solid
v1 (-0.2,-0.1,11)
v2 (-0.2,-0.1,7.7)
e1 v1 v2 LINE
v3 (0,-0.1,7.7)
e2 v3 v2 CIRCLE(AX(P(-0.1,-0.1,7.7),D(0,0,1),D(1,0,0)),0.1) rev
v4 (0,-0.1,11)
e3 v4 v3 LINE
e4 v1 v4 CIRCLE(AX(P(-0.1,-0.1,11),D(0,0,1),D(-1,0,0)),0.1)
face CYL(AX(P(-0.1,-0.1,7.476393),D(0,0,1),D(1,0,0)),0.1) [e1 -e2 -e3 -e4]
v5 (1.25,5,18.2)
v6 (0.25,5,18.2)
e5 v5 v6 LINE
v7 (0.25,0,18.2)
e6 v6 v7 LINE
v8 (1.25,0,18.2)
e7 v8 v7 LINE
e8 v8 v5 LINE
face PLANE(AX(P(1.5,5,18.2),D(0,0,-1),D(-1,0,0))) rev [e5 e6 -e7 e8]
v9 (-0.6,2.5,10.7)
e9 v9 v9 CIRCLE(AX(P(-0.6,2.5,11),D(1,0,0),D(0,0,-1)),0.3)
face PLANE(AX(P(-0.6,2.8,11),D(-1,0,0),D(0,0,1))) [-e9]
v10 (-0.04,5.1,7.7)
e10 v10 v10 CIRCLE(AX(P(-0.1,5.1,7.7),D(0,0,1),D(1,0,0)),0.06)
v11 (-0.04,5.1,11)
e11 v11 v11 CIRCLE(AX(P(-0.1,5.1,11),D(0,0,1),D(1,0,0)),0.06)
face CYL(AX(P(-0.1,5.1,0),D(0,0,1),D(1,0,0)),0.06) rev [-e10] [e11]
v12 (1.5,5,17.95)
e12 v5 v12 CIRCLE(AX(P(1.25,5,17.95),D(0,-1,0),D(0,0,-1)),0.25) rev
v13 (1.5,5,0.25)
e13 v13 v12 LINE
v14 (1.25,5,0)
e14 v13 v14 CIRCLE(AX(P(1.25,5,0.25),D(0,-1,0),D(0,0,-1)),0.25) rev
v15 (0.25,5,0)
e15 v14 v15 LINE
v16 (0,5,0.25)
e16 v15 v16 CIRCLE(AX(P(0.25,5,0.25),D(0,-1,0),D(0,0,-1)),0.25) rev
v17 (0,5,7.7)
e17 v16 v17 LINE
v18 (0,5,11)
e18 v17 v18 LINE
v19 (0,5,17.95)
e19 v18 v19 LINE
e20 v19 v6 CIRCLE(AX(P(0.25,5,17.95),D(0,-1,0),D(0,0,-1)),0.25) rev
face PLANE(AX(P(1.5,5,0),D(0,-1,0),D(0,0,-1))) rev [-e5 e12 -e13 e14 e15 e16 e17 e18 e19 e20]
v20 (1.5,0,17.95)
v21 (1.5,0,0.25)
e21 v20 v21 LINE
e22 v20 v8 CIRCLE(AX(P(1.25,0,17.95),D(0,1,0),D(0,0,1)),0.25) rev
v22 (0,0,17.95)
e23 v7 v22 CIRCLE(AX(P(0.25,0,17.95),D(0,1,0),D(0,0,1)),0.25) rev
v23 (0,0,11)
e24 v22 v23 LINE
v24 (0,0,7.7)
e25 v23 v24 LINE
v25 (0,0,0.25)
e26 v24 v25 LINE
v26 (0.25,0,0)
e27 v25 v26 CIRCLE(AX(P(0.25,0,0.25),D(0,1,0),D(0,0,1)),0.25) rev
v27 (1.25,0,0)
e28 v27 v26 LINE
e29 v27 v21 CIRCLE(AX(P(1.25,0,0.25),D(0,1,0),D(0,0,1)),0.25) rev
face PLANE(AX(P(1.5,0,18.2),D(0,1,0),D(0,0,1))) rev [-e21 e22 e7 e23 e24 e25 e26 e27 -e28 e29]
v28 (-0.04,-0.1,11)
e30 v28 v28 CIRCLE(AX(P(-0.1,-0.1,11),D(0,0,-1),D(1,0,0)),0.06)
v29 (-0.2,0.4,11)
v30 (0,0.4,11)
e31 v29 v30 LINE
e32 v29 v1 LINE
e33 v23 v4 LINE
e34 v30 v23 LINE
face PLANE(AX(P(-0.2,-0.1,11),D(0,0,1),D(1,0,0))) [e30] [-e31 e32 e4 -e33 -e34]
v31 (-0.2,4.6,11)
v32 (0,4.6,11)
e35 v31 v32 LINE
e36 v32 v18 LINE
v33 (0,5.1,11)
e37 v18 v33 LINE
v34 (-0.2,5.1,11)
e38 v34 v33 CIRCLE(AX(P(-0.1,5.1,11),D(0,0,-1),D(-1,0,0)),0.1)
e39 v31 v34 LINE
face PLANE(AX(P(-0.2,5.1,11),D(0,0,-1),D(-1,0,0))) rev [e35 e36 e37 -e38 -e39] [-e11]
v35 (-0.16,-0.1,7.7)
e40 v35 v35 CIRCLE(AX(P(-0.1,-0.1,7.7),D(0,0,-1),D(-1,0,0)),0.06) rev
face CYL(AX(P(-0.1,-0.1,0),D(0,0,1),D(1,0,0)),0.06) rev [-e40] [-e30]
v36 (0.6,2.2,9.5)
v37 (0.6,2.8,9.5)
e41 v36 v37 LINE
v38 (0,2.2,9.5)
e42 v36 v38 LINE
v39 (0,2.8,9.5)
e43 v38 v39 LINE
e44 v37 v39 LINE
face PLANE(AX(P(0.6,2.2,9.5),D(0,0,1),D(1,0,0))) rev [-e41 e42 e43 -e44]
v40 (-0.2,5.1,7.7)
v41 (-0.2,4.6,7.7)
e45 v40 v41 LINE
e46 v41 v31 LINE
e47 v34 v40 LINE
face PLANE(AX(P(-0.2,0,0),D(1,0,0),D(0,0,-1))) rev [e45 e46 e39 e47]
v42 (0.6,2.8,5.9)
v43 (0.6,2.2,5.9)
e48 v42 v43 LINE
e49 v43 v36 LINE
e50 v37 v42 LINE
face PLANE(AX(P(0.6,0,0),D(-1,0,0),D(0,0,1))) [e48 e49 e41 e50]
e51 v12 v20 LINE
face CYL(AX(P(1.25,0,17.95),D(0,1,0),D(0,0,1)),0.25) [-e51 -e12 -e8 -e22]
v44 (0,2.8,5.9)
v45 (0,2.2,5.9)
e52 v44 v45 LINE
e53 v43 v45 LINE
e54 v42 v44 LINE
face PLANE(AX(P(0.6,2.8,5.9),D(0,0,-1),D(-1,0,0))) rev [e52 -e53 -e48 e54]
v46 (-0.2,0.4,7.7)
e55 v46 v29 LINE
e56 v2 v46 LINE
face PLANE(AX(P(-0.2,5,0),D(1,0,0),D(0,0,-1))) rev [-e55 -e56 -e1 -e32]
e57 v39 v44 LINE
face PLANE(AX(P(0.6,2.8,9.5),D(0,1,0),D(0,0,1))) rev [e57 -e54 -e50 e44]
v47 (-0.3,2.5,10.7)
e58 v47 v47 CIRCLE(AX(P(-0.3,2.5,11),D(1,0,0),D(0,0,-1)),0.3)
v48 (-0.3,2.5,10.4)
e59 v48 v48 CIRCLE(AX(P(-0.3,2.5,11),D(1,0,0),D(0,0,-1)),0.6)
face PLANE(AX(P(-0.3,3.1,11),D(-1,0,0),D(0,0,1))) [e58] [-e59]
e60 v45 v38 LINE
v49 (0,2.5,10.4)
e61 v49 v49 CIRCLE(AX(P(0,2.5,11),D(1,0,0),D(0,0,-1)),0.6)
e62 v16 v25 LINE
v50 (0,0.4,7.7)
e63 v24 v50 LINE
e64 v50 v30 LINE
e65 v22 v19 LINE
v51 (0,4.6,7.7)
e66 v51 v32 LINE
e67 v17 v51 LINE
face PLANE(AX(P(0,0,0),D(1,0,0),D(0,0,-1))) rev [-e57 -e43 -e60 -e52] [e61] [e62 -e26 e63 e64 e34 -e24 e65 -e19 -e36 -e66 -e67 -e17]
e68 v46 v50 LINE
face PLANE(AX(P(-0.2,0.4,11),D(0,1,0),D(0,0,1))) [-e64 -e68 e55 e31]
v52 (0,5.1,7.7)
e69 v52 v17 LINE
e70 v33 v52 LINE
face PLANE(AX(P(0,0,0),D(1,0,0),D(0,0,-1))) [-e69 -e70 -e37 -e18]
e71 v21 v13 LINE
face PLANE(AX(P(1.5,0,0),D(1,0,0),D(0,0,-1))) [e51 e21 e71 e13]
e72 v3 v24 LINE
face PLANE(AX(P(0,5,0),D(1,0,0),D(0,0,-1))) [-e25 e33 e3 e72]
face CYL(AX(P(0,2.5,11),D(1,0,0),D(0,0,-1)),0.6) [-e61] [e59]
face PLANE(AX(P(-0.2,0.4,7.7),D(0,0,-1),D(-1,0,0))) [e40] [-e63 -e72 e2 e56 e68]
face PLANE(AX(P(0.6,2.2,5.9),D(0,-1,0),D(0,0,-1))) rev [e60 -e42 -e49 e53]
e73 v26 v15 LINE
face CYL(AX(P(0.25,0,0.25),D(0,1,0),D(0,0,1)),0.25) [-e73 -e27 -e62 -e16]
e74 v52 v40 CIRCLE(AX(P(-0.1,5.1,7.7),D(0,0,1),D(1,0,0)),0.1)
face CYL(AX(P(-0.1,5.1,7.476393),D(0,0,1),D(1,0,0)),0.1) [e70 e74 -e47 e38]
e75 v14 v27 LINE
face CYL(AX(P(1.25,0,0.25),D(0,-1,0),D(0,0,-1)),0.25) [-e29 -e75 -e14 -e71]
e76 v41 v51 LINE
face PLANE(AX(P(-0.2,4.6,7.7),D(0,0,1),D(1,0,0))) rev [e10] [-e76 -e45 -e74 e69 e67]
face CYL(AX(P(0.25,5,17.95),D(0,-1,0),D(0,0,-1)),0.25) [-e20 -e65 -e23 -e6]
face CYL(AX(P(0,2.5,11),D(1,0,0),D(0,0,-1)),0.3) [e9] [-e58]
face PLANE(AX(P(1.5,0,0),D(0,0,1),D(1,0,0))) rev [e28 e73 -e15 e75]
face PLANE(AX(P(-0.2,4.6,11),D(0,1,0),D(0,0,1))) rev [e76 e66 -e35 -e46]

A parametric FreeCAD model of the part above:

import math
import FreeCAD as App
import Part
import Sketcher
from FreeCAD import Vector


def edges_at(feature, points):
    """Names of the edges that pass closest to the given points."""
    edges = feature.Shape.Edges
    near = lambda p: min(range(len(edges)), key=lambda i: edges[i].distToShape(Part.Vertex(*p))[0])
    return sorted({f"Edge{near(p) + 1}" for p in points})


def add_polygon(sketch, points):
    """Adds a closed chain of lines whose ends are joined by coincident constraints."""
    first, n = sketch.GeometryCount, len(points)
    for a, b in zip(points, points[1:] + points[:1]):
        sketch.addGeometry(Part.LineSegment(App.Vector(*a, 0), App.Vector(*b, 0)), False)
    for i in range(n):
        sketch.addConstraint(Sketcher.Constraint("Coincident", first + i, 2, first + (i + 1) % n, 1))

doc = App.newDocument("Part")
body = doc.addObject("PartDesign::Body", "Body")

sketch1 = body.newObject("Sketcher::SketchObject", "Sketch")
sketch1.AttachmentSupport = (doc.getObject("YZ_Plane"), [""])
sketch1.MapMode = "FlatFace"
add_polygon(sketch1, [(5, 18.2), (0, 18.2), (0, 0), (5, 0)])
sketch1.addConstraint([
    Sketcher.Constraint("Horizontal", 0),
    Sketcher.Constraint("Vertical", 1),
    Sketcher.Constraint("Horizontal", 2),
    Sketcher.Constraint("Vertical", 3),
    Sketcher.Constraint("Coincident", 1, 2, -1, 1),
    Sketcher.Constraint("DistanceX", 0, 2, 0, 1, 5.0),
    Sketcher.Constraint("DistanceY", 1, 2, 1, 1, 18.2),
])
pad1 = body.newObject("PartDesign::Pad", "Pad")
pad1.Profile = sketch1
pad1.Length = 1.5

sketch2 = body.newObject("Sketcher::SketchObject", "Sketch001")
sketch2.AttachmentSupport = (doc.getObject("XY_Plane"), [""])
sketch2.MapMode = "FlatFace"
sketch2.AttachmentOffset = App.Placement(Vector(0, 0, 11), App.Rotation())
add_polygon(sketch2, [(0, 2.5), (0, 3.1), (-0.3, 3.1), (-0.3, 2.8), (-0.6, 2.8), (-0.6, 2.5)])
sketch2.addGeometry(Part.LineSegment(Vector(0, 2.5, 0), Vector(-0.6, 2.5, 0)), True)
sketch2.addConstraint([
    Sketcher.Constraint("Vertical", 0),
    Sketcher.Constraint("Horizontal", 1),
    Sketcher.Constraint("Vertical", 2),
    Sketcher.Constraint("Horizontal", 3),
    Sketcher.Constraint("Vertical", 4),
    Sketcher.Constraint("Horizontal", 5),
    Sketcher.Constraint("Horizontal", 6),
    Sketcher.Constraint("Coincident", 6, 1, 5, 2),
    Sketcher.Constraint("PointOnObject", 0, 2, -2),
    Sketcher.Constraint("Vertical", 3, 2, 6, 2),
    Sketcher.Constraint("Equal", 1, 3),
    Sketcher.Constraint("Equal", 6, 0),
    Sketcher.Constraint("Equal", 3, 2),
    Sketcher.Constraint("DistanceX", 1, 2, 1, 1, 0.3),
    Sketcher.Constraint("DistanceY", -1, 1, 0, 2, 3.1),
])
revolution = body.newObject("PartDesign::Revolution", "Revolution")
revolution.Profile = sketch2
revolution.ReferenceAxis = (sketch2, ["Axis0"])
revolution.Angle = 360

sketch3 = body.newObject("Sketcher::SketchObject", "Sketch002")
sketch3.AttachmentSupport = (doc.getObject("YZ_Plane"), [""])
sketch3.MapMode = "FlatFace"
add_polygon(sketch3, [(2.8, 5.9), (2.2, 5.9), (2.2, 9.5), (2.8, 9.5)])
sketch3.addConstraint([
    Sketcher.Constraint("Horizontal", 0),
    Sketcher.Constraint("Vertical", 1),
    Sketcher.Constraint("Horizontal", 2),
    Sketcher.Constraint("Vertical", 3),
    Sketcher.Constraint("DistanceX", 0, 2, 0, 1, 0.6),
    Sketcher.Constraint("DistanceY", 1, 1, 1, 2, 3.6),
    Sketcher.Constraint("DistanceX", -1, 1, 0, 2, 2.2),
    Sketcher.Constraint("DistanceY", -1, 1, 0, 2, 5.9),
])
pocket1 = body.newObject("PartDesign::Pocket", "Pocket")
pocket1.Profile = sketch3
pocket1.Length = 0.6
pocket1.Reversed = True

sketch4 = body.newObject("Sketcher::SketchObject", "Sketch003")
sketch4.AttachmentSupport = (doc.getObject("YZ_Plane"), [""])
sketch4.MapMode = "FlatFace"
add_polygon(sketch4, [(5.1, 7.7), (4.6, 7.7), (4.6, 11), (5.1, 11)])
sketch4.addConstraint([
    Sketcher.Constraint("Horizontal", 0),
    Sketcher.Constraint("Vertical", 1),
    Sketcher.Constraint("Horizontal", 2),
    Sketcher.Constraint("Vertical", 3),
    Sketcher.Constraint("DistanceX", 0, 2, 0, 1, 0.5),
    Sketcher.Constraint("DistanceY", 1, 1, 1, 2, 3.3),
    Sketcher.Constraint("DistanceY", -1, 1, 1, 2, 11.0),
    Sketcher.Constraint("DistanceX", -1, 1, 0, 2, 4.6),
])
pad2 = body.newObject("PartDesign::Pad", "Pad001")
pad2.Profile = sketch4
pad2.Length = 0.2
pad2.Reversed = True

sketch5 = body.newObject("Sketcher::SketchObject", "Sketch004")
sketch5.AttachmentSupport = (doc.getObject("XY_Plane"), [""])
sketch5.MapMode = "FlatFace"
sketch5.AttachmentOffset = App.Placement(Vector(0, 0, 11), App.Rotation())
sketch5.addGeometry([
    Part.LineSegment(Vector(-0.2, 5.1, 0), Vector(0, 5.1, 0)),
    Part.ArcOfCircle(Part.Circle(Vector(-0.1, 5.1, 0), Vector(0, 0, 1), 0.1), math.radians(0), math.radians(180)),
], False)
sketch5.addConstraint([
    Sketcher.Constraint("Coincident", 0, 1, 1, 2),
    Sketcher.Constraint("Coincident", 1, 1, 0, 2),
    Sketcher.Constraint("Horizontal", 0),
    Sketcher.Constraint("PointOnObject", 1, 1, -2),
    Sketcher.Constraint("Horizontal", 1, 3, 0, 1),
    Sketcher.Constraint("Radius", 1, 0.1),
    Sketcher.Constraint("DistanceY", -1, 1, 1, 3, 5.1),
])
pad3 = body.newObject("PartDesign::Pad", "Pad002")
pad3.Profile = sketch5
pad3.Length = 3.3
pad3.Reversed = True

sketch6 = body.newObject("Sketcher::SketchObject", "Sketch005")
sketch6.AttachmentSupport = (doc.getObject("XY_Plane"), [""])
sketch6.MapMode = "FlatFace"
sketch6.AttachmentOffset = App.Placement(Vector(0, 0, 11), App.Rotation())
sketch6.addGeometry(Part.Circle(Vector(-0.1, 5.1, 0), Vector(0, 0, 1), 0.06), False)
sketch6.addConstraint([
    Sketcher.Constraint("Diameter", 0, 0.12),
    Sketcher.Constraint("DistanceX", 0, 3, -1, 1, 0.1),
    Sketcher.Constraint("DistanceY", -1, 1, 0, 3, 5.1),
])
pocket2 = body.newObject("PartDesign::Pocket", "Pocket001")
pocket2.Profile = sketch6
pocket2.Type = "ThroughAll"
doc.recompute()

datumplane = body.newObject("PartDesign::Plane", "DatumPlane")
datumplane.AttachmentSupport = (doc.getObject("XZ_Plane"), [""])
datumplane.MapMode = "FlatFace"
datumplane.AttachmentOffset = App.Placement(Vector(0, 0, -2.5), App.Rotation())
mirrored = body.newObject("PartDesign::Mirrored", "Mirrored")
mirrored.Originals = [pad2, pad3, pocket2]
mirrored.MirrorPlane = (datumplane, [""])
body.Tip = mirrored
doc.recompute()

fillet = body.newObject("PartDesign::Fillet", "Fillet")
fillet.Base = (mirrored, edges_at(mirrored, [
    (1.5, 2.5, 18.2),
    (0, 2.5, 18.2),
    (0, 2.5, 0),
    (1.5, 2.5, 0),
]))
fillet.Radius = 0.25

doc.recompute()
